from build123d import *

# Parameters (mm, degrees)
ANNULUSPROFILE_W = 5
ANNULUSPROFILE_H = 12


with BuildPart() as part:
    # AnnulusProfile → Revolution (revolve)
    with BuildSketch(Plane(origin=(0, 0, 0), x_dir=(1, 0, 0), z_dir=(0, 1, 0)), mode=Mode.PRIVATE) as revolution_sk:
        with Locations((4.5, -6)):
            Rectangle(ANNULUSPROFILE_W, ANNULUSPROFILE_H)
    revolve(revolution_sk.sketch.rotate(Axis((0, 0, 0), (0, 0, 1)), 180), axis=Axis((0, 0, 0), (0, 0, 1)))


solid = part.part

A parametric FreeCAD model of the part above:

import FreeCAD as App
import Part
import Sketcher

V = App.Vector
Q = App.Units.Quantity

doc = App.newDocument("Part")
body = doc.addObject("PartDesign::Body", "Body")

# Sketch on XZ plane
sketch1 = body.newObject("Sketcher::SketchObject", "Sketch")
sketch1.AttachmentSupport = (doc.getObject("XZ_Plane"), [""])
sketch1.MapMode = "FlatFace"
sketch1.addGeometry(Part.LineSegment(V(2, 0, 0), V(2, 12, 0)), False)
sketch1.addGeometry(Part.LineSegment(V(2, 12, 0), V(7, 12, 0)), False)
sketch1.addGeometry(Part.LineSegment(V(7, 12, 0), V(7, 0, 0)), False)
sketch1.addGeometry(Part.LineSegment(V(7, 0, 0), V(2, 0, 0)), False)
sketch1.addConstraint(Sketcher.Constraint("Coincident", 0, 2, 1, 1))
sketch1.addConstraint(Sketcher.Constraint("Coincident", 1, 2, 2, 1))
sketch1.addConstraint(Sketcher.Constraint("Coincident", 2, 2, 3, 1))
sketch1.addConstraint(Sketcher.Constraint("Coincident", 3, 2, 0, 1))
sketch1.addConstraint(Sketcher.Constraint("Vertical", 0))
sketch1.addConstraint(Sketcher.Constraint("Horizontal", 1))
sketch1.addConstraint(Sketcher.Constraint("Vertical", 2))
sketch1.addConstraint(Sketcher.Constraint("Horizontal", 3))
sketch1.addConstraint(Sketcher.Constraint("PointOnObject", 2, 2, -1))
sketch1.addConstraint(Sketcher.Constraint("DistanceX", 1, 1, 1, 2, Q("5 mm")))
sketch1.addConstraint(Sketcher.Constraint("DistanceY", 0, 1, 0, 2, Q("12 mm")))
sketch1.addConstraint(Sketcher.Constraint("DistanceX", -1, 1, 0, 2, Q("2 mm")))
revolution = body.newObject("PartDesign::Revolution", "Revolution")
revolution.Profile = sketch1
revolution.ReferenceAxis = (sketch1, ["V_Axis"])
revolution.Angle = 360

doc.recompute()
